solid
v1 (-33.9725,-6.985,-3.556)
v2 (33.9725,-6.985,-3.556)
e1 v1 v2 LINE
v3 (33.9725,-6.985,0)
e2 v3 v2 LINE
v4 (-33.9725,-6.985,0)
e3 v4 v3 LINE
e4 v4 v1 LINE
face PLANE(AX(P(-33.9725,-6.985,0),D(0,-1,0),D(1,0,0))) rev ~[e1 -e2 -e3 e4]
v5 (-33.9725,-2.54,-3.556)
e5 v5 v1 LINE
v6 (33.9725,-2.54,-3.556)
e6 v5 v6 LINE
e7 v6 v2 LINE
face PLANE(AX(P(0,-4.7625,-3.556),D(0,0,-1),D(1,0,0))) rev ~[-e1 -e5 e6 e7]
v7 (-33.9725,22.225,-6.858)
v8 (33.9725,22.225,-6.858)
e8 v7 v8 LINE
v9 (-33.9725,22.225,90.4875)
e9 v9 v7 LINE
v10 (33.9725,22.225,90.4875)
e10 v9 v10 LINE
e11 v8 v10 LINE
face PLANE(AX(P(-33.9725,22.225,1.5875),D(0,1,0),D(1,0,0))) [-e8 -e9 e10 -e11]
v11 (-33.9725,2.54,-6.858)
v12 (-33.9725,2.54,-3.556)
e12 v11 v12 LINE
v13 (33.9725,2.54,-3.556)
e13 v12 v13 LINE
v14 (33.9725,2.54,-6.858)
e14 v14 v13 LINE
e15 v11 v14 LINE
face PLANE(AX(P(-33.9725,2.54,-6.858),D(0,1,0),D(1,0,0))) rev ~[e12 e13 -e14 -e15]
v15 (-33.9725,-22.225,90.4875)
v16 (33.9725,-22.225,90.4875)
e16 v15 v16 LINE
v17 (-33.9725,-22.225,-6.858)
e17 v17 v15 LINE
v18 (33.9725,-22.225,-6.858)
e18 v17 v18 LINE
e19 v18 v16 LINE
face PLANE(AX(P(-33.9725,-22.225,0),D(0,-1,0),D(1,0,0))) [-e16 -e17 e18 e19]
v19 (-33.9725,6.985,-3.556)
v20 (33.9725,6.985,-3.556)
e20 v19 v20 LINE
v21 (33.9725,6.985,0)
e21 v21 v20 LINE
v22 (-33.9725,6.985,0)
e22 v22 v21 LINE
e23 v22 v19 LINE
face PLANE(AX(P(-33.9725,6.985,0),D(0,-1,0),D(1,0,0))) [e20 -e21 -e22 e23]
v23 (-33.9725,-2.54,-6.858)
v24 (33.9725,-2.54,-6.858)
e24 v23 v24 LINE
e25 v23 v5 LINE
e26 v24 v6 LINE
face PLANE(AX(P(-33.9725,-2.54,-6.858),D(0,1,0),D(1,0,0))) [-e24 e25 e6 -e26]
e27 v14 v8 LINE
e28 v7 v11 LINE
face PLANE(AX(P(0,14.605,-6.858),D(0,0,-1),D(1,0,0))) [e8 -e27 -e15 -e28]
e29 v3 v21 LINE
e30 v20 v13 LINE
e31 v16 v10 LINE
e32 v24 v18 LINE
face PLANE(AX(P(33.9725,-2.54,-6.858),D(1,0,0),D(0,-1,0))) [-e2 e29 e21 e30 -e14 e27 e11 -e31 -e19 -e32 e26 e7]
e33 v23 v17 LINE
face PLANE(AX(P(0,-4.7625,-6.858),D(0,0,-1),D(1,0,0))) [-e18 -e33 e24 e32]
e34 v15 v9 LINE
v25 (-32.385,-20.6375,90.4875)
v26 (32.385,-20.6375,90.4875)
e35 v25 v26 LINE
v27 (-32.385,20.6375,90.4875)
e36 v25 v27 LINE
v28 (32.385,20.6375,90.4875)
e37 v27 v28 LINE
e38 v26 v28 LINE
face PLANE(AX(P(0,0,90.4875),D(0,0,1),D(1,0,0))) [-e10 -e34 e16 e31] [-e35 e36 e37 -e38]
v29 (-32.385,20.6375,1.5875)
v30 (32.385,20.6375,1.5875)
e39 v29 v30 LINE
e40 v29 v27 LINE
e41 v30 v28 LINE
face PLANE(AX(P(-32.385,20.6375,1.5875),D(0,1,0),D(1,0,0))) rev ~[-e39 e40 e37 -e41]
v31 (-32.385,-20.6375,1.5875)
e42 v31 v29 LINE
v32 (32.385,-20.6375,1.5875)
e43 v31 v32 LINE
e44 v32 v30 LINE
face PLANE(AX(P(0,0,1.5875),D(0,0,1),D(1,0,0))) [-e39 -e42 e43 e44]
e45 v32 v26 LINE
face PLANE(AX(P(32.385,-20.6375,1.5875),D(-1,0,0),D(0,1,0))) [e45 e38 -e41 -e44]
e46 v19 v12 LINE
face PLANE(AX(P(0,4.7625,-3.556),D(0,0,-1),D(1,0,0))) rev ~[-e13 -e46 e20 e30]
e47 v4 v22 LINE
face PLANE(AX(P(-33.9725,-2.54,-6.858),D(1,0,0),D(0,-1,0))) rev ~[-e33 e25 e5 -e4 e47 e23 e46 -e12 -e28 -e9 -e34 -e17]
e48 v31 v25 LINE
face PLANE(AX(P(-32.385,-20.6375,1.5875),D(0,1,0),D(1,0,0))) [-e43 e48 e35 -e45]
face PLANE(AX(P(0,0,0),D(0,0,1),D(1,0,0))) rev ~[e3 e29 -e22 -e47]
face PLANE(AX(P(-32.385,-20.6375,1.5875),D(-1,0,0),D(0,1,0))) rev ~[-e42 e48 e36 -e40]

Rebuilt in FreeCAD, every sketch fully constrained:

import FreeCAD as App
import Part
import Sketcher
from FreeCAD import Vector
Q = App.Units.Quantity

doc = App.newDocument("Part")
body = doc.addObject("PartDesign::Body", "Body")

# Sketch on XY plane
sketch1 = body.newObject("Sketcher::SketchObject", "Sketch")
sketch1.AttachmentSupport = (doc.getObject("XY_Plane"), [""])
sketch1.MapMode = "FlatFace"
sketch1.addGeometry([
    Part.LineSegment(Vector(-33.9725, 22.225, 0), Vector(-33.9725, -22.225, 0)),
    Part.LineSegment(Vector(-33.9725, -22.225, 0), Vector(33.9725, -22.225, 0)),
    Part.LineSegment(Vector(33.9725, -22.225, 0), Vector(33.9725, 22.225, 0)),
    Part.LineSegment(Vector(33.9725, 22.225, 0), Vector(-33.9725, 22.225, 0)),
], False)
sketch1.addConstraint([
    Sketcher.Constraint("Coincident", 0, 2, 1, 1),
    Sketcher.Constraint("Coincident", 1, 2, 2, 1),
    Sketcher.Constraint("Coincident", 2, 2, 3, 1),
    Sketcher.Constraint("Coincident", 3, 2, 0, 1),
    Sketcher.Constraint("Vertical", 0),
    Sketcher.Constraint("Horizontal", 1),
    Sketcher.Constraint("Vertical", 2),
    Sketcher.Constraint("Horizontal", 3),
    Sketcher.Constraint("Symmetric", 0, 2, 2, 2, -1, 1),
    Sketcher.Constraint("DistanceY", 0, 2, 0, 1, Q("1.75 in")),
    Sketcher.Constraint("DistanceX", 1, 1, 1, 2, Q("2.675 in")),
])
pad1 = body.newObject("PartDesign::Pad", "Pad")
pad1.Profile = sketch1
pad1.Length = Q("0.0625 in")

# Sketch on XY plane
sketch2 = body.newObject("Sketcher::SketchObject", "Sketch001")
sketch2.AttachmentSupport = (doc.getObject("XY_Plane"), [""])
sketch2.MapMode = "FlatFace"
sketch2.AttachmentOffset = App.Placement(Vector(0, 0, 0.0625 * 25.4), App.Rotation())
sketch2.addGeometry([
    Part.LineSegment(Vector(-33.9725, 22.225, 0), Vector(-33.9725, -22.225, 0)),  # 0
    Part.LineSegment(Vector(-33.9725, -22.225, 0), Vector(33.9725, -22.225, 0)),  # 1
    Part.LineSegment(Vector(33.9725, -22.225, 0), Vector(33.9725, 22.225, 0)),  # 2
    Part.LineSegment(Vector(33.9725, 22.225, 0), Vector(-33.9725, 22.225, 0)),  # 3
    Part.LineSegment(Vector(32.385, -20.6375, 0), Vector(-32.385, -20.6375, 0)),  # 4
    Part.LineSegment(Vector(-32.385, -20.6375, 0), Vector(-32.385, 20.6375, 0)),  # 5
    Part.LineSegment(Vector(-32.385, 20.6375, 0), Vector(32.385, 20.6375, 0)),  # 6
    Part.LineSegment(Vector(32.385, 20.6375, 0), Vector(32.385, -20.6375, 0)),  # 7
], False)
sketch2.addConstraint([
    Sketcher.Constraint("Coincident", 0, 2, 1, 1),
    Sketcher.Constraint("Coincident", 1, 2, 2, 1),
    Sketcher.Constraint("Coincident", 2, 2, 3, 1),
    Sketcher.Constraint("Coincident", 3, 2, 0, 1),
    Sketcher.Constraint("Coincident", 4, 2, 5, 1),
    Sketcher.Constraint("Coincident", 5, 2, 6, 1),
    Sketcher.Constraint("Coincident", 6, 2, 7, 1),
    Sketcher.Constraint("Coincident", 7, 2, 4, 1),
    Sketcher.Constraint("Vertical", 0),
    Sketcher.Constraint("Horizontal", 1),
    Sketcher.Constraint("Vertical", 2),
    Sketcher.Constraint("Horizontal", 3),
    Sketcher.Constraint("Horizontal", 4),
    Sketcher.Constraint("Vertical", 5),
    Sketcher.Constraint("Horizontal", 6),
    Sketcher.Constraint("Vertical", 7),
    Sketcher.Constraint("Symmetric", 0, 2, 2, 2, -1, 1),
    Sketcher.Constraint("Symmetric", 4, 2, 6, 2, -1, 1),
    Sketcher.Constraint("DistanceX", 4, 2, 4, 1, Q("2.55 in")),
    Sketcher.Constraint("DistanceY", 0, 2, 0, 1, Q("1.75 in")),
    Sketcher.Constraint("DistanceX", 1, 1, 1, 2, Q("2.675 in")),
    Sketcher.Constraint("DistanceY", 5, 1, 5, 2, Q("1.625 in")),
])
pad2 = body.newObject("PartDesign::Pad", "Pad001")
pad2.Profile = sketch2
pad2.Length = Q("3.5 in")

# Sketch on XY plane
sketch3 = body.newObject("Sketcher::SketchObject", "Sketch002")
sketch3.AttachmentSupport = (doc.getObject("XY_Plane"), [""])
sketch3.MapMode = "FlatFace"
sketch3.addGeometry([
    Part.LineSegment(Vector(-33.9725, -22.225, 0), Vector(-33.9725, -6.985, 0)),  # 0
    Part.LineSegment(Vector(-33.9725, -6.985, 0), Vector(33.9725, -6.985, 0)),  # 1
    Part.LineSegment(Vector(33.9725, -6.985, 0), Vector(33.9725, -22.225, 0)),  # 2
    Part.LineSegment(Vector(33.9725, -22.225, 0), Vector(-33.9725, -22.225, 0)),  # 3
    Part.LineSegment(Vector(-33.9725, 6.985, 0), Vector(-33.9725, 22.225, 0)),  # 4
    Part.LineSegment(Vector(-33.9725, 22.225, 0), Vector(33.9725, 22.225, 0)),  # 5
    Part.LineSegment(Vector(33.9725, 22.225, 0), Vector(33.9725, 6.985, 0)),  # 6
    Part.LineSegment(Vector(33.9725, 6.985, 0), Vector(-33.9725, 6.985, 0)),  # 7
], False)
sketch3.addConstraint([
    Sketcher.Constraint("Coincident", 0, 2, 1, 1),
    Sketcher.Constraint("Coincident", 1, 2, 2, 1),
    Sketcher.Constraint("Coincident", 2, 2, 3, 1),
    Sketcher.Constraint("Coincident", 3, 2, 0, 1),
    Sketcher.Constraint("Coincident", 4, 2, 5, 1),
    Sketcher.Constraint("Coincident", 5, 2, 6, 1),
    Sketcher.Constraint("Coincident", 6, 2, 7, 1),
    Sketcher.Constraint("Coincident", 7, 2, 4, 1),
    Sketcher.Constraint("Vertical", 0),
    Sketcher.Constraint("Horizontal", 1),
    Sketcher.Constraint("Vertical", 2),
    Sketcher.Constraint("Horizontal", 3),
    Sketcher.Constraint("Vertical", 4),
    Sketcher.Constraint("Horizontal", 5),
    Sketcher.Constraint("Vertical", 6),
    Sketcher.Constraint("Horizontal", 7),
    Sketcher.Constraint("Symmetric", 2, 2, 4, 2, -1, 1),
    Sketcher.Constraint("Symmetric", 0, 2, 6, 2, -1, 1),
    Sketcher.Constraint("Vertical", 3, 2, 4, 2),
    Sketcher.Constraint("DistanceY", 0, 1, 0, 2, Q("0.6 in")),
    Sketcher.Constraint("DistanceX", 1, 1, 1, 2, Q("2.675 in")),
    Sketcher.Constraint("DistanceY", 0, 2, 4, 2, Q("1.15 in")),
])
pad3 = body.newObject("PartDesign::Pad", "Pad002")
pad3.Profile = sketch3
pad3.Length = Q("0.27 in")
pad3.Reversed = True

# Sketch on XY plane
sketch4 = body.newObject("Sketcher::SketchObject", "Sketch003")
sketch4.AttachmentSupport = (doc.getObject("XY_Plane"), [""])
sketch4.MapMode = "FlatFace"
sketch4.AttachmentOffset = App.Placement(Vector(0, 0, -0.27 * 25.4), App.Rotation())
sketch4.addGeometry([
    Part.LineSegment(Vector(-33.9725, -6.985, 0), Vector(-33.9725, -2.54, 0)),  # 0
    Part.LineSegment(Vector(-33.9725, -2.54, 0), Vector(33.9725, -2.54, 0)),  # 1
    Part.LineSegment(Vector(33.9725, -2.54, 0), Vector(33.9725, -6.985, 0)),  # 2
    Part.LineSegment(Vector(33.9725, -6.985, 0), Vector(-33.9725, -6.985, 0)),  # 3
    Part.LineSegment(Vector(-33.9725, 2.54, 0), Vector(-33.9725, 6.985, 0)),  # 4
    Part.LineSegment(Vector(-33.9725, 6.985, 0), Vector(33.9725, 6.985, 0)),  # 5
    Part.LineSegment(Vector(33.9725, 6.985, 0), Vector(33.9725, 2.54, 0)),  # 6
    Part.LineSegment(Vector(33.9725, 2.54, 0), Vector(-33.9725, 2.54, 0)),  # 7
], False)
sketch4.addConstraint([
    Sketcher.Constraint("Coincident", 0, 2, 1, 1),
    Sketcher.Constraint("Coincident", 1, 2, 2, 1),
    Sketcher.Constraint("Coincident", 2, 2, 3, 1),
    Sketcher.Constraint("Coincident", 3, 2, 0, 1),
    Sketcher.Constraint("Coincident", 4, 2, 5, 1),
    Sketcher.Constraint("Coincident", 5, 2, 6, 1),
    Sketcher.Constraint("Coincident", 6, 2, 7, 1),
    Sketcher.Constraint("Coincident", 7, 2, 4, 1),
    Sketcher.Constraint("Vertical", 0),
    Sketcher.Constraint("Horizontal", 1),
    Sketcher.Constraint("Vertical", 2),
    Sketcher.Constraint("Horizontal", 3),
    Sketcher.Constraint("Vertical", 4),
    Sketcher.Constraint("Horizontal", 5),
    Sketcher.Constraint("Vertical", 6),
    Sketcher.Constraint("Horizontal", 7),
    Sketcher.Constraint("Symmetric", 2, 2, 4, 2, -1, 1),
    Sketcher.Constraint("Symmetric", 0, 2, 6, 2, -1, 1),
    Sketcher.Constraint("Vertical", 3, 2, 4, 2),
    Sketcher.Constraint("DistanceY", 0, 2, -1, 1, Q("0.1 in")),
    Sketcher.Constraint("DistanceX", 1, 1, 1, 2, Q("2.675 in")),
    Sketcher.Constraint("DistanceY", 0, 1, 0, 2, Q("0.175 in")),
])
pad4 = body.newObject("PartDesign::Pad", "Pad003")
pad4.Profile = sketch4
pad4.Length = Q("0.13 in")

doc.recompute()
